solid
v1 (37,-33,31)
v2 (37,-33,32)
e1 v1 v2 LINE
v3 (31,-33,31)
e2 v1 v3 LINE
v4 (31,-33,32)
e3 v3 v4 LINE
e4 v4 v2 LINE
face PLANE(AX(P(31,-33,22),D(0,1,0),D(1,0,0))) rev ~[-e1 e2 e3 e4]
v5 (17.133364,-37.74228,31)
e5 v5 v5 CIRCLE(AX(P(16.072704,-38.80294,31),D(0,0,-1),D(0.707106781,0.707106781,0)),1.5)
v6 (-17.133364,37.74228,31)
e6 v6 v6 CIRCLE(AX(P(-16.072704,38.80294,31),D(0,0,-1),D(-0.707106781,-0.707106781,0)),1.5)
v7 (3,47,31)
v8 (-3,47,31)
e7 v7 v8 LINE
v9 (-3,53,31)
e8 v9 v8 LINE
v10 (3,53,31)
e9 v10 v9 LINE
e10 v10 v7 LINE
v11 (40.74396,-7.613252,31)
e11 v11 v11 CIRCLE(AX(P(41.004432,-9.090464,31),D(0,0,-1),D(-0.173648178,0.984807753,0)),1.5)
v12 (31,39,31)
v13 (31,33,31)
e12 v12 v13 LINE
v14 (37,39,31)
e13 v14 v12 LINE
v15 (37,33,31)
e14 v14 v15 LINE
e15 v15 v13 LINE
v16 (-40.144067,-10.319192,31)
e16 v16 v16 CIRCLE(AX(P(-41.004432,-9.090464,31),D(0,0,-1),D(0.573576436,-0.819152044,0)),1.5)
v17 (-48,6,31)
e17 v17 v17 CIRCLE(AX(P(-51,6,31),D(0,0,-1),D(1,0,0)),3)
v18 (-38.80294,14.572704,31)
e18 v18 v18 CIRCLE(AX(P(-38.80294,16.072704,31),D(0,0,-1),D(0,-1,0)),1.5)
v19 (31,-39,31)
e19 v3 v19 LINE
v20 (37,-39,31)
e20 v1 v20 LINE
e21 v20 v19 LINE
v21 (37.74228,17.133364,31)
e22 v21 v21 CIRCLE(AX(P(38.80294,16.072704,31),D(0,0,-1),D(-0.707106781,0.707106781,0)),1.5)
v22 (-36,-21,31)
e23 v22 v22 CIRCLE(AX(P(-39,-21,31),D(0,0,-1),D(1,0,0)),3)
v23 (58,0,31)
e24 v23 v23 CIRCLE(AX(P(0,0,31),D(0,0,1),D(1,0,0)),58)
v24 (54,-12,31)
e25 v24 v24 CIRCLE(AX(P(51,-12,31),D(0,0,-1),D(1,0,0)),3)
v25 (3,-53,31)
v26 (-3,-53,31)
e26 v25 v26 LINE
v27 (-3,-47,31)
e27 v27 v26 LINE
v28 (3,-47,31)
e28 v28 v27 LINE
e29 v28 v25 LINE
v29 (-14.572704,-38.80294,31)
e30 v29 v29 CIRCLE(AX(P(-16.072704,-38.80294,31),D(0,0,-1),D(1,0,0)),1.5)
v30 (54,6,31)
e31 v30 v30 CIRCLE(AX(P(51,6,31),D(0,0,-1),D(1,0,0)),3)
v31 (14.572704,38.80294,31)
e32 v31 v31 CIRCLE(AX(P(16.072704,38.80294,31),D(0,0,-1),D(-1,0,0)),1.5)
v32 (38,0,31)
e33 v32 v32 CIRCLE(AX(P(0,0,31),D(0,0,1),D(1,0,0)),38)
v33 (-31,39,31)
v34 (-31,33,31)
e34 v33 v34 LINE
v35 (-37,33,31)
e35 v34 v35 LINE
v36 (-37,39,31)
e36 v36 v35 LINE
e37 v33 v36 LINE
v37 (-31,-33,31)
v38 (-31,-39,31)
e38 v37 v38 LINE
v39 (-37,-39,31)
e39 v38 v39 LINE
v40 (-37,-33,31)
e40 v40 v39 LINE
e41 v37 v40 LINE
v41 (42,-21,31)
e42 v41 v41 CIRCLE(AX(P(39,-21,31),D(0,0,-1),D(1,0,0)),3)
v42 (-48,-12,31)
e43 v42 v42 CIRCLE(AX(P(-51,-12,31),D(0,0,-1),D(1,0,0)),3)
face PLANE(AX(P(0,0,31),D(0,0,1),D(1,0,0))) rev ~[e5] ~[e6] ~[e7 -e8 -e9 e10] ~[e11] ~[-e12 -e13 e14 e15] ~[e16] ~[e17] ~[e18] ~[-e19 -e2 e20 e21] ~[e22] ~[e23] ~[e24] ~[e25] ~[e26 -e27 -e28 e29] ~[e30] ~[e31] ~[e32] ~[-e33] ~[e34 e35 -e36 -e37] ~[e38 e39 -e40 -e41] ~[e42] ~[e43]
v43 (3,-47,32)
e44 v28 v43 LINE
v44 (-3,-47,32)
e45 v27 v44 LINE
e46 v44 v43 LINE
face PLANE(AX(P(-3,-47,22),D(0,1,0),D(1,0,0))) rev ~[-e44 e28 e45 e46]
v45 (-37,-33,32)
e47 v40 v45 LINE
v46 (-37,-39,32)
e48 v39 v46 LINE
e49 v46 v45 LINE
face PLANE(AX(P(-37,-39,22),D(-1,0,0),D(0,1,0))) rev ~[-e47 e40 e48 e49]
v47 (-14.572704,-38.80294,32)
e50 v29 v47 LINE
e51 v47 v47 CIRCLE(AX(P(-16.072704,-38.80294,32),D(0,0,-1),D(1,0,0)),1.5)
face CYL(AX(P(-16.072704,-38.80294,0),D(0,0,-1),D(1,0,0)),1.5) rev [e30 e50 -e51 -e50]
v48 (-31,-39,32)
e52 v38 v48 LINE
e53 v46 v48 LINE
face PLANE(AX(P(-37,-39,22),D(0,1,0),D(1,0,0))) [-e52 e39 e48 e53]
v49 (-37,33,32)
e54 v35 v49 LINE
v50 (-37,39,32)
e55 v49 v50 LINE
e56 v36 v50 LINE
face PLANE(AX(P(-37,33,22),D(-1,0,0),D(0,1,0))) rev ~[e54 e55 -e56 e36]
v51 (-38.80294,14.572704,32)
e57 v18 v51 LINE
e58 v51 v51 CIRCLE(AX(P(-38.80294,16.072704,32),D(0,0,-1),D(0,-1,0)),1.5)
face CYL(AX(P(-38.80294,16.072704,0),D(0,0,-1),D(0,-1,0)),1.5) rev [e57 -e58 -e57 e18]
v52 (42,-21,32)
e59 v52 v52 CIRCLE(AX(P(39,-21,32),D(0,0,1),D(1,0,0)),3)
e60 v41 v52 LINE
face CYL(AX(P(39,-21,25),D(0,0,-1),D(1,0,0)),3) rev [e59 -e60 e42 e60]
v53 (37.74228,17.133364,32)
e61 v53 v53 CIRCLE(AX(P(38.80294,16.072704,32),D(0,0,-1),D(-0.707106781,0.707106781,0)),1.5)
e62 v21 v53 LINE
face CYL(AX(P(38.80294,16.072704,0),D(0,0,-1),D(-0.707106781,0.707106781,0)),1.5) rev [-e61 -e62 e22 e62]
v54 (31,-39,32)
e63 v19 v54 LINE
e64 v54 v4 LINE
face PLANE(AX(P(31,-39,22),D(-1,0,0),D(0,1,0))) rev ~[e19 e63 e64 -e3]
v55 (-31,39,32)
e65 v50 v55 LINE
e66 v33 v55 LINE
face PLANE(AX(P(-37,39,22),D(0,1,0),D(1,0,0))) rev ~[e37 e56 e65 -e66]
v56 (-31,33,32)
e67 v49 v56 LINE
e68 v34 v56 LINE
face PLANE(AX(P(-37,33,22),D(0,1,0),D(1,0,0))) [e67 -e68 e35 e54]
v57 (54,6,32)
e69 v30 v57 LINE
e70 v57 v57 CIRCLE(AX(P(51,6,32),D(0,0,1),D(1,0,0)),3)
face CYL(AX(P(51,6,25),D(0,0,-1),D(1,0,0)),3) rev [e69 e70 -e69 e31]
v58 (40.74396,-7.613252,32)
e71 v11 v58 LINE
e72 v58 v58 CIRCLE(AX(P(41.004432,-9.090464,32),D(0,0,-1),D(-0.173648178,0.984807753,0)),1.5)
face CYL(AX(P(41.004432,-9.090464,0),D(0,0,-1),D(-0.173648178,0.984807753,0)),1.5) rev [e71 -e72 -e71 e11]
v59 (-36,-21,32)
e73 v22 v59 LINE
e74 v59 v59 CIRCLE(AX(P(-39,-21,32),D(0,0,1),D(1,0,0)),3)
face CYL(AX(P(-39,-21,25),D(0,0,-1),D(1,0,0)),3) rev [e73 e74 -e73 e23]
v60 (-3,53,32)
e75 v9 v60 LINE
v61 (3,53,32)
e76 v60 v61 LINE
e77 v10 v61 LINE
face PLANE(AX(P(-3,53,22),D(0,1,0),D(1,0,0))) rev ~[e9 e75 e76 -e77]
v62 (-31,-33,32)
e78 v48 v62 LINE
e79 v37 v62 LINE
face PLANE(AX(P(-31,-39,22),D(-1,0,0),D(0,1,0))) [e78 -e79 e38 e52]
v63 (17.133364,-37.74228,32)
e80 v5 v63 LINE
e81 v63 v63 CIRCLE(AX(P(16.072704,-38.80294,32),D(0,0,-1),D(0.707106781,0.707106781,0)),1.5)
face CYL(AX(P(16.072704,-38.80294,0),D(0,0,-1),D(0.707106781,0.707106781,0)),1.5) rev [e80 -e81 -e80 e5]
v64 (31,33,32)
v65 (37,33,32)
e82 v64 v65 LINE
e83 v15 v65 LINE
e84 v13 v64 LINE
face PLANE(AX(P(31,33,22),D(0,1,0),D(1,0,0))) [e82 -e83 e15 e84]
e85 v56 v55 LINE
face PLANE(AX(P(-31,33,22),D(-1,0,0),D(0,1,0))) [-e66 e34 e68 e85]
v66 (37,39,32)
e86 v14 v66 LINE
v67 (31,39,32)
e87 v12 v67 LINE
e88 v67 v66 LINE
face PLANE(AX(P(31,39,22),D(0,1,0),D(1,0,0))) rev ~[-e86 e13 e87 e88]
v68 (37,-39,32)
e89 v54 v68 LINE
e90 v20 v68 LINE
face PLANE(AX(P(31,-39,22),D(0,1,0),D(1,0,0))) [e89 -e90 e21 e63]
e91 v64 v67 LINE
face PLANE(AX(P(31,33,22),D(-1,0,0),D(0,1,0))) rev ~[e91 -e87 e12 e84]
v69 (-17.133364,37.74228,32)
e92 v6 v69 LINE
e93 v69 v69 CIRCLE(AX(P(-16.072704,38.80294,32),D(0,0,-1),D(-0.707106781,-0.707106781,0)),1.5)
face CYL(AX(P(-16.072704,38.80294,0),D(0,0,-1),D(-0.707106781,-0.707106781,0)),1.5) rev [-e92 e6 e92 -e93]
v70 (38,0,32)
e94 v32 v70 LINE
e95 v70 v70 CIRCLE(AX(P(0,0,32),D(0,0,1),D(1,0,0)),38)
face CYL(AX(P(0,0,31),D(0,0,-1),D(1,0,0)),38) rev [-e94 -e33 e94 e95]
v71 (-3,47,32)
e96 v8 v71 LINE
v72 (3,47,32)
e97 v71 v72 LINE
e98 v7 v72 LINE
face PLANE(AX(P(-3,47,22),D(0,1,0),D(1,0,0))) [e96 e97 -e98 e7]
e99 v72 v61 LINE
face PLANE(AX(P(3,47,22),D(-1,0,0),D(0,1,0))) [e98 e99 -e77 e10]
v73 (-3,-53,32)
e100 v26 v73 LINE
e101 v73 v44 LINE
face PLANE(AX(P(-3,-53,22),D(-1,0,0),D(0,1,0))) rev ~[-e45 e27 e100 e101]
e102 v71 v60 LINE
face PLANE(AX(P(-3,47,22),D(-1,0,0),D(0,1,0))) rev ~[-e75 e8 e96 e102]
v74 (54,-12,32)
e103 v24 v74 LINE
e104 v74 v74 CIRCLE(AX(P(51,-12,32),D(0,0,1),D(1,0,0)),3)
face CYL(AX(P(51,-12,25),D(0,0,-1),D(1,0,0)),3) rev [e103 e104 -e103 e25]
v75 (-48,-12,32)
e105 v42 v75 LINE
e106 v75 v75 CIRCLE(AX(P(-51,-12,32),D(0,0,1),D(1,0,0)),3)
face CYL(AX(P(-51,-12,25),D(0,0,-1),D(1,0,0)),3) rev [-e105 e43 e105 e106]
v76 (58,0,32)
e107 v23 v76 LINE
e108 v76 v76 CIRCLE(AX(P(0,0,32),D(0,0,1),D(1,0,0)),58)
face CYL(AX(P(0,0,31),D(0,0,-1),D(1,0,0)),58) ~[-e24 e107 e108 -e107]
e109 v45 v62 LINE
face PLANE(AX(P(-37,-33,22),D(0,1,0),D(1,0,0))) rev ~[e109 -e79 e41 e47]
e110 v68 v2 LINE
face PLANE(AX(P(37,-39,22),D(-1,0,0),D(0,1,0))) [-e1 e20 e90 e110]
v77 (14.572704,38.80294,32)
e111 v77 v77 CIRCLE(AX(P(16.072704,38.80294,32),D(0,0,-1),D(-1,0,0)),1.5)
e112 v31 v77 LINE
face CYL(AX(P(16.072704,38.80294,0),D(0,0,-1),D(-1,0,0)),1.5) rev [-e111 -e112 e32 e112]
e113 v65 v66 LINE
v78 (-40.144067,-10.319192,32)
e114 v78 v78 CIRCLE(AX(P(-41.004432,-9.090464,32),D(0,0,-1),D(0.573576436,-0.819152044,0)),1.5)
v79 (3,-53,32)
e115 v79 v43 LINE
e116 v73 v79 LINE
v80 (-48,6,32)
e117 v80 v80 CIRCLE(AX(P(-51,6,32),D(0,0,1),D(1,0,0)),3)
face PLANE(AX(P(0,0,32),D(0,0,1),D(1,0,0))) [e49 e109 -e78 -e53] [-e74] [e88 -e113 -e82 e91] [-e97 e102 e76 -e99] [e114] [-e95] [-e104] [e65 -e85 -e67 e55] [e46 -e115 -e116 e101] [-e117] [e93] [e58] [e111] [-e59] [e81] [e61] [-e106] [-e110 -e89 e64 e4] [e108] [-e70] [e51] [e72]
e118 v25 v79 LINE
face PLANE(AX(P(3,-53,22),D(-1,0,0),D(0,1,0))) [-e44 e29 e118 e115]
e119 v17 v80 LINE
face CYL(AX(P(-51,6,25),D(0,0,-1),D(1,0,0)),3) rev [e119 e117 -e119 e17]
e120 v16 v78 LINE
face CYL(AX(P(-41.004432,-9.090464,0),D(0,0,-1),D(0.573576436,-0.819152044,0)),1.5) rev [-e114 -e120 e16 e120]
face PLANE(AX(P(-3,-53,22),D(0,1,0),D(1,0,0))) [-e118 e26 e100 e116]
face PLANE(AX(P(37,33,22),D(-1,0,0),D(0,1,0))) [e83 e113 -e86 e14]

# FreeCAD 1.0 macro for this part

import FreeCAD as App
import Part
import Sketcher
Q = App.Units.Quantity

doc = App.newDocument("Part")
params = doc.addObject("Spreadsheet::Sheet", "Params")
for row, (alias, value) in enumerate([
    ("sketch1_diameter", "6 mm"),
    ("pad1_length", "7 mm"),
    ("sketch2_diameter", "6 mm"),
    ("pad2_length", "7 mm"),
    ("sketch3_diameter", "3 mm"),
    ("pad3_length", "100 mm"),
    ("sketch4_diameter", "3 mm"),
    ("pad4_length", "100 mm"),
    ("sketch5_diameter", "3 mm"),
    ("pad5_length", "100 mm"),
    ("sketch6_diameter", "3 mm"),
    ("pad6_length", "100 mm"),
    ("sketch7_diameter", "3 mm"),
    ("pad7_length", "100 mm"),
    ("sketch8_diameter", "3 mm"),
    ("pad8_length", "100 mm"),
    ("sketch9_diameter", "3 mm"),
    ("pad9_length", "100 mm"),
    ("sketch10_diameter", "3 mm"),
    ("pad10_length", "100 mm"),
    ("sketch11_width", "6 mm"),
    ("pad11_length", "10 mm"),
    ("sketch12_width", "6 mm"),
    ("pad12_length", "10 mm"),
    ("sketch13_width", "6 mm"),
    ("pad13_length", "10 mm"),
    ("sketch14_width", "6 mm"),
    ("pad14_length", "10 mm"),
    ("sketch15_width", "6 mm"),
    ("pad15_length", "10 mm"),
    ("sketch16_width", "6 mm"),
    ("pad16_length", "10 mm"),
    ("sketch17_diameter", "6 mm"),
    ("pad17_length", "7 mm"),
    ("sketch18_diameter", "6 mm"),
    ("pad18_length", "7 mm"),
    ("sketch19_diameter", "6 mm"),
    ("pad19_length", "7 mm"),
    ("sketch20_diameter", "6 mm"),
    ("pad20_length", "7 mm"),
    ("sketch21_diameter", "116 mm"),
    ("sketch21_diameter2", "76 mm"),
    ("pad21_length", "1 mm"),
], start=1):
    params.set(f"A{row}", alias)
    params.set(f"B{row}", "=" + value)
    params.setAlias(f"B{row}", alias)

body = doc.addObject("PartDesign::Body", "Body")

sketch1 = body.newObject("Sketcher::SketchObject", "Sketch")
sketch1.AttachmentSupport = (doc.getObject("XY_Plane"), [""])
sketch1.MapMode = "FlatFace"
sketch1.AttachmentOffset = App.Placement(App.Vector(0, 0, 50), App.Rotation())
sketch1.addGeometry(Part.Circle(App.Vector(39, -21, 0), App.Vector(0, 0, 1), 3), False)
sketch1.addConstraint([
    Sketcher.Constraint("Diameter", 0, Q("6 mm")),
    Sketcher.Constraint("DistanceX", -1, 1, 0, 3, Q("39 mm")),
    Sketcher.Constraint("DistanceY", 0, 3, -1, 1, Q("21 mm")),
])
sketch1.setExpression("Constraints[0]", "Params.sketch1_diameter")
pad1 = body.newObject("PartDesign::Pad", "Pad")
pad1.Profile = sketch1
pad1.setExpression("Length", "Params.pad1_length")
body2 = doc.addObject("PartDesign::Body", "Body001")
body2.AllowCompound = True

sketch2 = body2.newObject("Sketcher::SketchObject", "Sketch001")
sketch2.AttachmentSupport = (doc.getObject("XY_Plane001"), [""])
sketch2.MapMode = "FlatFace"
sketch2.AttachmentOffset = App.Placement(App.Vector(0, 0, 50), App.Rotation())
sketch2.addGeometry(Part.Circle(App.Vector(-39, -21, 0), App.Vector(0, 0, 1), 3), False)
sketch2.addConstraint([
    Sketcher.Constraint("Diameter", 0, Q("6 mm")),
    Sketcher.Constraint("DistanceX", 0, 3, -1, 1, Q("39 mm")),
    Sketcher.Constraint("DistanceY", 0, 3, -1, 1, Q("21 mm")),
])
sketch2.setExpression("Constraints[0]", "Params.sketch2_diameter")
pad2 = body2.newObject("PartDesign::Pad", "Pad001")
pad2.Profile = sketch2
pad2.setExpression("Length", "Params.pad2_length")
doc.recompute()

boolean = body2.newObject("PartDesign::Boolean", "Boolean")
boolean.Type = "Fuse"
boolean.addObjects([body])
body3 = doc.addObject("PartDesign::Body", "Body002")
body3.AllowCompound = True
doc.recompute()

body2.Placement = App.Placement(App.Vector(0, 0, -25), App.Rotation(App.Vector(0, 0, 1), 0))
boolean2 = body3.newObject("PartDesign::Boolean", "Boolean001")
boolean2.Type = "Fuse"
boolean2.addObjects([body2])
body4 = doc.addObject("PartDesign::Body", "Body003")

sketch3 = body4.newObject("Sketcher::SketchObject", "Sketch002")
sketch3.AttachmentSupport = (doc.getObject("XY_Plane003"), [""])
sketch3.MapMode = "FlatFace"
sketch3.addGeometry(Part.Circle(App.Vector(0, 0, 0), App.Vector(0, 0, 1), 1.5), False)
sketch3.addConstraint([
    Sketcher.Constraint("Coincident", 0, 3, -1, 1),
    Sketcher.Constraint("Diameter", 0, Q("3 mm")),
])
sketch3.setExpression("Constraints[1]", "Params.sketch3_diameter")
pad3 = body4.newObject("PartDesign::Pad", "Pad002")
pad3.Profile = sketch3
pad3.setExpression("Length", "Params.pad3_length")
body5 = doc.addObject("PartDesign::Body", "Body004")
doc.recompute()

body4.Placement = App.Placement(App.Vector(41.004432, -9.090464, 0), App.Rotation(App.Vector(0, 0, 1), 100))
boolean3 = body5.newObject("PartDesign::Boolean", "Boolean002")
boolean3.Type = "Fuse"
boolean3.addObjects([body4])
body6 = doc.addObject("PartDesign::Body", "Body005")

sketch4 = body6.newObject("Sketcher::SketchObject", "Sketch003")
sketch4.AttachmentSupport = (doc.getObject("XY_Plane005"), [""])
sketch4.MapMode = "FlatFace"
sketch4.addGeometry(Part.Circle(App.Vector(0, 0, 0), App.Vector(0, 0, 1), 1.5), False)
sketch4.addConstraint([
    Sketcher.Constraint("Coincident", 0, 3, -1, 1),
    Sketcher.Constraint("Diameter", 0, Q("3 mm")),
])
sketch4.setExpression("Constraints[1]", "Params.sketch4_diameter")
pad4 = body6.newObject("PartDesign::Pad", "Pad003")
pad4.Profile = sketch4
pad4.setExpression("Length", "Params.pad4_length")
body7 = doc.addObject("PartDesign::Body", "Body006")
doc.recompute()

body6.Placement = App.Placement(App.Vector(38.80294, 16.072704, 0), App.Rotation(App.Vector(0, 0, 1), 135))
boolean4 = body7.newObject("PartDesign::Boolean", "Boolean003")
boolean4.Type = "Fuse"
boolean4.addObjects([body6])
body8 = doc.addObject("PartDesign::Body", "Body007")

sketch5 = body8.newObject("Sketcher::SketchObject", "Sketch004")
sketch5.AttachmentSupport = (doc.getObject("XY_Plane007"), [""])
sketch5.MapMode = "FlatFace"
sketch5.addGeometry(Part.Circle(App.Vector(16.1, 38.8, 0), App.Vector(0, 0, 1), 1.5), False)
sketch5.addConstraint([
    Sketcher.Constraint("Diameter", 0, Q("3 mm")),
    Sketcher.Constraint("DistanceY", -1, 1, 0, 3, Q("38.80294 mm")),
    Sketcher.Constraint("DistanceX", -1, 1, 0, 3, Q("16.072704 mm")),
])
sketch5.setExpression("Constraints[0]", "Params.sketch5_diameter")
pad5 = body8.newObject("PartDesign::Pad", "Pad004")
pad5.Profile = sketch5
pad5.setExpression("Length", "Params.pad5_length")
body9 = doc.addObject("PartDesign::Body", "Body008")

sketch6 = body9.newObject("Sketcher::SketchObject", "Sketch005")
sketch6.AttachmentSupport = (doc.getObject("XY_Plane008"), [""])
sketch6.MapMode = "FlatFace"
sketch6.addGeometry(Part.Circle(App.Vector(0, 0, 0), App.Vector(0, 0, 1), 1.5), False)
sketch6.addConstraint([
    Sketcher.Constraint("Coincident", 0, 3, -1, 1),
    Sketcher.Constraint("Diameter", 0, Q("3 mm")),
])
sketch6.setExpression("Constraints[1]", "Params.sketch6_diameter")
pad6 = body9.newObject("PartDesign::Pad", "Pad005")
pad6.Profile = sketch6
pad6.setExpression("Length", "Params.pad6_length")
body10 = doc.addObject("PartDesign::Body", "Body009")
doc.recompute()

body9.Placement = App.Placement(App.Vector(-16.072704, 38.80294, 0), App.Rotation(App.Vector(0, 0, 1), 225))
boolean5 = body10.newObject("PartDesign::Boolean", "Boolean004")
boolean5.Type = "Fuse"
boolean5.addObjects([body9])
body11 = doc.addObject("PartDesign::Body", "Body010")

sketch7 = body11.newObject("Sketcher::SketchObject", "Sketch006")
sketch7.AttachmentSupport = (doc.getObject("XY_Plane010"), [""])
sketch7.MapMode = "FlatFace"
sketch7.addGeometry(Part.Circle(App.Vector(-38.8, 16.1, 0), App.Vector(0, 0, 1), 1.5), False)
sketch7.addConstraint([
    Sketcher.Constraint("Diameter", 0, Q("3 mm")),
    Sketcher.Constraint("DistanceX", 0, 3, -1, 1, Q("38.80294 mm")),
    Sketcher.Constraint("DistanceY", -1, 1, 0, 3, Q("16.072704 mm")),
])
sketch7.setExpression("Constraints[0]", "Params.sketch7_diameter")
pad7 = body11.newObject("PartDesign::Pad", "Pad006")
pad7.Profile = sketch7
pad7.setExpression("Length", "Params.pad7_length")
body12 = doc.addObject("PartDesign::Body", "Body011")

sketch8 = body12.newObject("Sketcher::SketchObject", "Sketch007")
sketch8.AttachmentSupport = (doc.getObject("XY_Plane011"), [""])
sketch8.MapMode = "FlatFace"
sketch8.addGeometry(Part.Circle(App.Vector(0, 0, 0), App.Vector(0, 0, 1), 1.5), False)
sketch8.addConstraint([
    Sketcher.Constraint("Coincident", 0, 3, -1, 1),
    Sketcher.Constraint("Diameter", 0, Q("3 mm")),
])
sketch8.setExpression("Constraints[1]", "Params.sketch8_diameter")
pad8 = body12.newObject("PartDesign::Pad", "Pad007")
pad8.Profile = sketch8
pad8.setExpression("Length", "Params.pad8_length")
body13 = doc.addObject("PartDesign::Body", "Body012")
doc.recompute()

body12.Placement = App.Placement(App.Vector(-41.004432, -9.090464, 0), App.Rotation(App.Vector(0, 0, -1), 55))
boolean6 = body13.newObject("PartDesign::Boolean", "Boolean005")
boolean6.Type = "Fuse"
boolean6.addObjects([body12])
body14 = doc.addObject("PartDesign::Body", "Body013")

sketch9 = body14.newObject("Sketcher::SketchObject", "Sketch008")
sketch9.AttachmentSupport = (doc.getObject("XY_Plane013"), [""])
sketch9.MapMode = "FlatFace"
sketch9.addGeometry(Part.Circle(App.Vector(-16.1, -38.8, 0), App.Vector(0, 0, 1), 1.5), False)
sketch9.addConstraint([
    Sketcher.Constraint("Diameter", 0, Q("3 mm")),
    Sketcher.Constraint("DistanceY", 0, 3, -1, 1, Q("38.80294 mm")),
    Sketcher.Constraint("DistanceX", 0, 3, -1, 1, Q("16.072704 mm")),
])
sketch9.setExpression("Constraints[0]", "Params.sketch9_diameter")
pad9 = body14.newObject("PartDesign::Pad", "Pad008")
pad9.Profile = sketch9
pad9.setExpression("Length", "Params.pad9_length")
body15 = doc.addObject("PartDesign::Body", "Body014")

sketch10 = body15.newObject("Sketcher::SketchObject", "Sketch009")
sketch10.AttachmentSupport = (doc.getObject("XY_Plane014"), [""])
sketch10.MapMode = "FlatFace"
sketch10.addGeometry(Part.Circle(App.Vector(0, 0, 0), App.Vector(0, 0, 1), 1.5), False)
sketch10.addConstraint([
    Sketcher.Constraint("Coincident", 0, 3, -1, 1),
    Sketcher.Constraint("Diameter", 0, Q("3 mm")),
])
sketch10.setExpression("Constraints[1]", "Params.sketch10_diameter")
pad10 = body15.newObject("PartDesign::Pad", "Pad009")
pad10.Profile = sketch10
pad10.setExpression("Length", "Params.pad10_length")
body16 = doc.addObject("PartDesign::Body", "Body015")
body16.AllowCompound = True
doc.recompute()

body15.Placement = App.Placement(App.Vector(16.072704, -38.80294, 0), App.Rotation(App.Vector(0, 0, 1), 45))
boolean7 = body16.newObject("PartDesign::Boolean", "Boolean006")
boolean7.Type = "Fuse"
boolean7.addObjects([body15])
doc.recompute()

boolean8 = body16.newObject("PartDesign::Boolean", "Boolean007")
boolean8.Type = "Fuse"
boolean8.addObjects([body5])
doc.recompute()

boolean9 = body16.newObject("PartDesign::Boolean", "Boolean008")
boolean9.Type = "Fuse"
boolean9.addObjects([body7])
doc.recompute()

boolean10 = body16.newObject("PartDesign::Boolean", "Boolean009")
boolean10.Type = "Fuse"
boolean10.addObjects([body8])
doc.recompute()

boolean11 = body16.newObject("PartDesign::Boolean", "Boolean010")
boolean11.Type = "Fuse"
boolean11.addObjects([body10])
doc.recompute()

boolean12 = body16.newObject("PartDesign::Boolean", "Boolean011")
boolean12.Type = "Fuse"
boolean12.addObjects([body11])
doc.recompute()

boolean13 = body16.newObject("PartDesign::Boolean", "Boolean012")
boolean13.Type = "Fuse"
boolean13.addObjects([body13])
doc.recompute()

boolean14 = body16.newObject("PartDesign::Boolean", "Boolean013")
boolean14.Type = "Fuse"
boolean14.addObjects([body14])
body17 = doc.addObject("PartDesign::Body", "Body016")

sketch11 = body17.newObject("Sketcher::SketchObject", "Sketch010")
sketch11.AttachmentSupport = (doc.getObject("XY_Plane016"), [""])
sketch11.MapMode = "FlatFace"
sketch11.AttachmentOffset = App.Placement(App.Vector(0, 0, 40), App.Rotation())
sketch11.addGeometry([
    Part.LineSegment(App.Vector(-37, -33, 0), App.Vector(-37, -39, 0)),
    Part.LineSegment(App.Vector(-37, -39, 0), App.Vector(-31, -39, 0)),
    Part.LineSegment(App.Vector(-31, -39, 0), App.Vector(-31, -33, 0)),
    Part.LineSegment(App.Vector(-31, -33, 0), App.Vector(-37, -33, 0)),
], False)
sketch11.addConstraint([
    Sketcher.Constraint("Coincident", 0, 2, 1, 1),
    Sketcher.Constraint("Coincident", 1, 2, 2, 1),
    Sketcher.Constraint("Coincident", 2, 2, 3, 1),
    Sketcher.Constraint("Coincident", 3, 2, 0, 1),
    Sketcher.Constraint("Vertical", 0),
    Sketcher.Constraint("Horizontal", 1),
    Sketcher.Constraint("Vertical", 2),
    Sketcher.Constraint("Horizontal", 3),
    Sketcher.Constraint("Equal", 3, 0),
    Sketcher.Constraint("DistanceX", 1, 1, 1, 2, Q("6 mm")),
    Sketcher.Constraint("DistanceX", 0, 2, -1, 1, Q("37 mm")),
    Sketcher.Constraint("DistanceY", 0, 2, -1, 1, Q("39 mm")),
])
sketch11.setExpression("Constraints[9]", "Params.sketch11_width")
pad11 = body17.newObject("PartDesign::Pad", "Pad010")
pad11.Profile = sketch11
pad11.setExpression("Length", "Params.pad11_length")
body18 = doc.addObject("PartDesign::Body", "Body017")

sketch12 = body18.newObject("Sketcher::SketchObject", "Sketch011")
sketch12.AttachmentSupport = (doc.getObject("XY_Plane017"), [""])
sketch12.MapMode = "FlatFace"
sketch12.AttachmentOffset = App.Placement(App.Vector(0, 0, 40), App.Rotation())
sketch12.addGeometry([
    Part.LineSegment(App.Vector(-3, -47, 0), App.Vector(-3, -53, 0)),
    Part.LineSegment(App.Vector(-3, -53, 0), App.Vector(3, -53, 0)),
    Part.LineSegment(App.Vector(3, -53, 0), App.Vector(3, -47, 0)),
    Part.LineSegment(App.Vector(3, -47, 0), App.Vector(-3, -47, 0)),
], False)
sketch12.addConstraint([
    Sketcher.Constraint("Coincident", 0, 2, 1, 1),
    Sketcher.Constraint("Coincident", 1, 2, 2, 1),
    Sketcher.Constraint("Coincident", 2, 2, 3, 1),
    Sketcher.Constraint("Coincident", 3, 2, 0, 1),
    Sketcher.Constraint("Vertical", 0),
    Sketcher.Constraint("Horizontal", 1),
    Sketcher.Constraint("Vertical", 2),
    Sketcher.Constraint("Horizontal", 3),
    Sketcher.Constraint("Equal", 3, 0),
    Sketcher.Constraint("DistanceX", 1, 1, 1, 2, Q("6 mm")),
    Sketcher.Constraint("DistanceX", 0, 2, -1, 1, Q("3 mm")),
    Sketcher.Constraint("DistanceY", 0, 2, -1, 1, Q("53 mm")),
])
sketch12.setExpression("Constraints[9]", "Params.sketch12_width")
pad12 = body18.newObject("PartDesign::Pad", "Pad011")
pad12.Profile = sketch12
pad12.setExpression("Length", "Params.pad12_length")
body19 = doc.addObject("PartDesign::Body", "Body018")

sketch13 = body19.newObject("Sketcher::SketchObject", "Sketch012")
sketch13.AttachmentSupport = (doc.getObject("XY_Plane018"), [""])
sketch13.MapMode = "FlatFace"
sketch13.AttachmentOffset = App.Placement(App.Vector(0, 0, 40), App.Rotation())
sketch13.addGeometry([
    Part.LineSegment(App.Vector(31, 39, 0), App.Vector(31, 33, 0)),
    Part.LineSegment(App.Vector(31, 33, 0), App.Vector(37, 33, 0)),
    Part.LineSegment(App.Vector(37, 33, 0), App.Vector(37, 39, 0)),
    Part.LineSegment(App.Vector(37, 39, 0), App.Vector(31, 39, 0)),
], False)
sketch13.addConstraint([
    Sketcher.Constraint("Coincident", 0, 2, 1, 1),
    Sketcher.Constraint("Coincident", 1, 2, 2, 1),
    Sketcher.Constraint("Coincident", 2, 2, 3, 1),
    Sketcher.Constraint("Coincident", 3, 2, 0, 1),
    Sketcher.Constraint("Vertical", 0),
    Sketcher.Constraint("Horizontal", 1),
    Sketcher.Constraint("Vertical", 2),
    Sketcher.Constraint("Horizontal", 3),
    Sketcher.Constraint("Equal", 3, 0),
    Sketcher.Constraint("DistanceX", 1, 1, 1, 2, Q("6 mm")),
    Sketcher.Constraint("DistanceX", -1, 1, 0, 2, Q("31 mm")),
    Sketcher.Constraint("DistanceY", -1, 1, 0, 2, Q("33 mm")),
])
sketch13.setExpression("Constraints[9]", "Params.sketch13_width")
pad13 = body19.newObject("PartDesign::Pad", "Pad012")
pad13.Profile = sketch13
pad13.setExpression("Length", "Params.pad13_length")
body20 = doc.addObject("PartDesign::Body", "Body019")

sketch14 = body20.newObject("Sketcher::SketchObject", "Sketch013")
sketch14.AttachmentSupport = (doc.getObject("XY_Plane019"), [""])
sketch14.MapMode = "FlatFace"
sketch14.AttachmentOffset = App.Placement(App.Vector(0, 0, 40), App.Rotation())
sketch14.addGeometry([
    Part.LineSegment(App.Vector(-37, 39, 0), App.Vector(-37, 33, 0)),
    Part.LineSegment(App.Vector(-37, 33, 0), App.Vector(-31, 33, 0)),
    Part.LineSegment(App.Vector(-31, 33, 0), App.Vector(-31, 39, 0)),
    Part.LineSegment(App.Vector(-31, 39, 0), App.Vector(-37, 39, 0)),
], False)
sketch14.addConstraint([
    Sketcher.Constraint("Coincident", 0, 2, 1, 1),
    Sketcher.Constraint("Coincident", 1, 2, 2, 1),
    Sketcher.Constraint("Coincident", 2, 2, 3, 1),
    Sketcher.Constraint("Coincident", 3, 2, 0, 1),
    Sketcher.Constraint("Vertical", 0),
    Sketcher.Constraint("Horizontal", 1),
    Sketcher.Constraint("Vertical", 2),
    Sketcher.Constraint("Horizontal", 3),
    Sketcher.Constraint("Equal", 3, 0),
    Sketcher.Constraint("DistanceX", 1, 1, 1, 2, Q("6 mm")),
    Sketcher.Constraint("DistanceX", 0, 2, -1, 1, Q("37 mm")),
    Sketcher.Constraint("DistanceY", -1, 1, 0, 2, Q("33 mm")),
])
sketch14.setExpression("Constraints[9]", "Params.sketch14_width")
pad14 = body20.newObject("PartDesign::Pad", "Pad013")
pad14.Profile = sketch14
pad14.setExpression("Length", "Params.pad14_length")
body21 = doc.addObject("PartDesign::Body", "Body020")

sketch15 = body21.newObject("Sketcher::SketchObject", "Sketch014")
sketch15.AttachmentSupport = (doc.getObject("XY_Plane020"), [""])
sketch15.MapMode = "FlatFace"
sketch15.AttachmentOffset = App.Placement(App.Vector(0, 0, 40), App.Rotation())
sketch15.addGeometry([
    Part.LineSegment(App.Vector(31, -33, 0), App.Vector(31, -39, 0)),
    Part.LineSegment(App.Vector(31, -39, 0), App.Vector(37, -39, 0)),
    Part.LineSegment(App.Vector(37, -39, 0), App.Vector(37, -33, 0)),
    Part.LineSegment(App.Vector(37, -33, 0), App.Vector(31, -33, 0)),
], False)
sketch15.addConstraint([
    Sketcher.Constraint("Coincident", 0, 2, 1, 1),
    Sketcher.Constraint("Coincident", 1, 2, 2, 1),
    Sketcher.Constraint("Coincident", 2, 2, 3, 1),
    Sketcher.Constraint("Coincident", 3, 2, 0, 1),
    Sketcher.Constraint("Vertical", 0),
    Sketcher.Constraint("Horizontal", 1),
    Sketcher.Constraint("Vertical", 2),
    Sketcher.Constraint("Horizontal", 3),
    Sketcher.Constraint("Equal", 3, 0),
    Sketcher.Constraint("DistanceX", 1, 1, 1, 2, Q("6 mm")),
    Sketcher.Constraint("DistanceX", -1, 1, 0, 2, Q("31 mm")),
    Sketcher.Constraint("DistanceY", 0, 2, -1, 1, Q("39 mm")),
])
sketch15.setExpression("Constraints[9]", "Params.sketch15_width")
pad15 = body21.newObject("PartDesign::Pad", "Pad014")
pad15.Profile = sketch15
pad15.setExpression("Length", "Params.pad15_length")
body22 = doc.addObject("PartDesign::Body", "Body021")
body22.AllowCompound = True

sketch16 = body22.newObject("Sketcher::SketchObject", "Sketch015")
sketch16.AttachmentSupport = (doc.getObject("XY_Plane021"), [""])
sketch16.MapMode = "FlatFace"
sketch16.AttachmentOffset = App.Placement(App.Vector(0, 0, 40), App.Rotation())
sketch16.addGeometry([
    Part.LineSegment(App.Vector(-3, 53, 0), App.Vector(-3, 47, 0)),
    Part.LineSegment(App.Vector(-3, 47, 0), App.Vector(3, 47, 0)),
    Part.LineSegment(App.Vector(3, 47, 0), App.Vector(3, 53, 0)),
    Part.LineSegment(App.Vector(3, 53, 0), App.Vector(-3, 53, 0)),
], False)
sketch16.addConstraint([
    Sketcher.Constraint("Coincident", 0, 2, 1, 1),
    Sketcher.Constraint("Coincident", 1, 2, 2, 1),
    Sketcher.Constraint("Coincident", 2, 2, 3, 1),
    Sketcher.Constraint("Coincident", 3, 2, 0, 1),
    Sketcher.Constraint("Vertical", 0),
    Sketcher.Constraint("Horizontal", 1),
    Sketcher.Constraint("Vertical", 2),
    Sketcher.Constraint("Horizontal", 3),
    Sketcher.Constraint("Equal", 3, 0),
    Sketcher.Constraint("DistanceX", 1, 1, 1, 2, Q("6 mm")),
    Sketcher.Constraint("DistanceX", 0, 2, -1, 1, Q("3 mm")),
    Sketcher.Constraint("DistanceY", -1, 1, 0, 2, Q("47 mm")),
])
sketch16.setExpression("Constraints[9]", "Params.sketch16_width")
pad16 = body22.newObject("PartDesign::Pad", "Pad015")
pad16.Profile = sketch16
pad16.setExpression("Length", "Params.pad16_length")
doc.recompute()

boolean15 = body22.newObject("PartDesign::Boolean", "Boolean014")
boolean15.Type = "Fuse"
boolean15.addObjects([body17])
doc.recompute()

boolean16 = body22.newObject("PartDesign::Boolean", "Boolean015")
boolean16.Type = "Fuse"
boolean16.addObjects([body18])
doc.recompute()

boolean17 = body22.newObject("PartDesign::Boolean", "Boolean016")
boolean17.Type = "Fuse"
boolean17.addObjects([body19])
doc.recompute()

boolean18 = body22.newObject("PartDesign::Boolean", "Boolean017")
boolean18.Type = "Fuse"
boolean18.addObjects([body20])
doc.recompute()

boolean19 = body22.newObject("PartDesign::Boolean", "Boolean018")
boolean19.Type = "Fuse"
boolean19.addObjects([body21])
body23 = doc.addObject("PartDesign::Body", "Body022")
body23.AllowCompound = True
doc.recompute()

body22.Placement = App.Placement(App.Vector(0, 0, -18), App.Rotation(App.Vector(0, 0, 1), 0))
boolean20 = body23.newObject("PartDesign::Boolean", "Boolean019")
boolean20.Type = "Fuse"
boolean20.addObjects([body22])
body24 = doc.addObject("PartDesign::Body", "Body023")

sketch17 = body24.newObject("Sketcher::SketchObject", "Sketch016")
sketch17.AttachmentSupport = (doc.getObject("XY_Plane023"), [""])
sketch17.MapMode = "FlatFace"
sketch17.AttachmentOffset = App.Placement(App.Vector(0, 0, 50), App.Rotation())
sketch17.addGeometry(Part.Circle(App.Vector(51, -12, 0), App.Vector(0, 0, 1), 3), False)
sketch17.addConstraint([
    Sketcher.Constraint("Diameter", 0, Q("6 mm")),
    Sketcher.Constraint("DistanceX", -1, 1, 0, 3, Q("51 mm")),
    Sketcher.Constraint("DistanceY", 0, 3, -1, 1, Q("12 mm")),
])
sketch17.setExpression("Constraints[0]", "Params.sketch17_diameter")
pad17 = body24.newObject("PartDesign::Pad", "Pad016")
pad17.Profile = sketch17
pad17.setExpression("Length", "Params.pad17_length")
body25 = doc.addObject("PartDesign::Body", "Body024")

sketch18 = body25.newObject("Sketcher::SketchObject", "Sketch017")
sketch18.AttachmentSupport = (doc.getObject("XY_Plane024"), [""])
sketch18.MapMode = "FlatFace"
sketch18.AttachmentOffset = App.Placement(App.Vector(0, 0, 50), App.Rotation())
sketch18.addGeometry(Part.Circle(App.Vector(51, 6, 0), App.Vector(0, 0, 1), 3), False)
sketch18.addConstraint([
    Sketcher.Constraint("Diameter", 0, Q("6 mm")),
    Sketcher.Constraint("DistanceX", -1, 1, 0, 3, Q("51 mm")),
    Sketcher.Constraint("DistanceY", -1, 1, 0, 3, Q("6 mm")),
])
sketch18.setExpression("Constraints[0]", "Params.sketch18_diameter")
pad18 = body25.newObject("PartDesign::Pad", "Pad017")
pad18.Profile = sketch18
pad18.setExpression("Length", "Params.pad18_length")
body26 = doc.addObject("PartDesign::Body", "Body025")

sketch19 = body26.newObject("Sketcher::SketchObject", "Sketch018")
sketch19.AttachmentSupport = (doc.getObject("XY_Plane025"), [""])
sketch19.MapMode = "FlatFace"
sketch19.AttachmentOffset = App.Placement(App.Vector(0, 0, 50), App.Rotation())
sketch19.addGeometry(Part.Circle(App.Vector(-51, 6, 0), App.Vector(0, 0, 1), 3), False)
sketch19.addConstraint([
    Sketcher.Constraint("Diameter", 0, Q("6 mm")),
    Sketcher.Constraint("DistanceX", 0, 3, -1, 1, Q("51 mm")),
    Sketcher.Constraint("DistanceY", -1, 1, 0, 3, Q("6 mm")),
])
sketch19.setExpression("Constraints[0]", "Params.sketch19_diameter")
pad19 = body26.newObject("PartDesign::Pad", "Pad018")
pad19.Profile = sketch19
pad19.setExpression("Length", "Params.pad19_length")
body27 = doc.addObject("PartDesign::Body", "Body026")
body27.AllowCompound = True

sketch20 = body27.newObject("Sketcher::SketchObject", "Sketch019")
sketch20.AttachmentSupport = (doc.getObject("XY_Plane026"), [""])
sketch20.MapMode = "FlatFace"
sketch20.AttachmentOffset = App.Placement(App.Vector(0, 0, 50), App.Rotation())
sketch20.addGeometry(Part.Circle(App.Vector(-51, -12, 0), App.Vector(0, 0, 1), 3), False)
sketch20.addConstraint([
    Sketcher.Constraint("Diameter", 0, Q("6 mm")),
    Sketcher.Constraint("DistanceX", 0, 3, -1, 1, Q("51 mm")),
    Sketcher.Constraint("DistanceY", 0, 3, -1, 1, Q("12 mm")),
])
sketch20.setExpression("Constraints[0]", "Params.sketch20_diameter")
pad20 = body27.newObject("PartDesign::Pad", "Pad019")
pad20.Profile = sketch20
pad20.setExpression("Length", "Params.pad20_length")
doc.recompute()

boolean21 = body27.newObject("PartDesign::Boolean", "Boolean020")
boolean21.Type = "Fuse"
boolean21.addObjects([body24])
doc.recompute()

boolean22 = body27.newObject("PartDesign::Boolean", "Boolean021")
boolean22.Type = "Fuse"
boolean22.addObjects([body25])
doc.recompute()

boolean23 = body27.newObject("PartDesign::Boolean", "Boolean022")
boolean23.Type = "Fuse"
boolean23.addObjects([body26])
body28 = doc.addObject("PartDesign::Body", "Body027")
body28.AllowCompound = True
doc.recompute()

body27.Placement = App.Placement(App.Vector(0, 0, -25), App.Rotation(App.Vector(0, 0, 1), 0))
boolean24 = body28.newObject("PartDesign::Boolean", "Boolean023")
boolean24.Type = "Fuse"
boolean24.addObjects([body27])
body29 = doc.addObject("PartDesign::Body", "Body028")

sketch21 = body29.newObject("Sketcher::SketchObject", "Sketch020")
sketch21.AttachmentSupport = (doc.getObject("XY_Plane028"), [""])
sketch21.MapMode = "FlatFace"
sketch21.AttachmentOffset = App.Placement(App.Vector(0, 0, 31), App.Rotation())
sketch21.addGeometry([
    Part.Circle(App.Vector(0, 0, 0), App.Vector(0, 0, 1), 58),
    Part.Circle(App.Vector(0, 0, 0), App.Vector(0, 0, 1), 38),
], False)
sketch21.addConstraint([
    Sketcher.Constraint("Coincident", 0, 3, -1, 1),
    Sketcher.Constraint("Coincident", 1, 3, -1, 1),
    Sketcher.Constraint("Diameter", 0, Q("116 mm")),
    Sketcher.Constraint("Diameter", 1, Q("76 mm")),
])
sketch21.setExpression("Constraints[2]", "Params.sketch21_diameter")
sketch21.setExpression("Constraints[3]", "Params.sketch21_diameter2")
pad21 = body29.newObject("PartDesign::Pad", "Pad020")
pad21.Profile = sketch21
pad21.setExpression("Length", "Params.pad21_length")
doc.recompute()

boolean25 = body29.newObject("PartDesign::Boolean", "Boolean024")
boolean25.Type = "Cut"
boolean25.addObjects([body28])
doc.recompute()

boolean26 = body29.newObject("PartDesign::Boolean", "Boolean025")
boolean26.Type = "Cut"
boolean26.addObjects([body23])
doc.recompute()

boolean27 = body29.newObject("PartDesign::Boolean", "Boolean026")
boolean27.Type = "Cut"
boolean27.addObjects([body16])
doc.recompute()

boolean28 = body29.newObject("PartDesign::Boolean", "Boolean027")
boolean28.Type = "Cut"
boolean28.addObjects([body3])

doc.recompute()
